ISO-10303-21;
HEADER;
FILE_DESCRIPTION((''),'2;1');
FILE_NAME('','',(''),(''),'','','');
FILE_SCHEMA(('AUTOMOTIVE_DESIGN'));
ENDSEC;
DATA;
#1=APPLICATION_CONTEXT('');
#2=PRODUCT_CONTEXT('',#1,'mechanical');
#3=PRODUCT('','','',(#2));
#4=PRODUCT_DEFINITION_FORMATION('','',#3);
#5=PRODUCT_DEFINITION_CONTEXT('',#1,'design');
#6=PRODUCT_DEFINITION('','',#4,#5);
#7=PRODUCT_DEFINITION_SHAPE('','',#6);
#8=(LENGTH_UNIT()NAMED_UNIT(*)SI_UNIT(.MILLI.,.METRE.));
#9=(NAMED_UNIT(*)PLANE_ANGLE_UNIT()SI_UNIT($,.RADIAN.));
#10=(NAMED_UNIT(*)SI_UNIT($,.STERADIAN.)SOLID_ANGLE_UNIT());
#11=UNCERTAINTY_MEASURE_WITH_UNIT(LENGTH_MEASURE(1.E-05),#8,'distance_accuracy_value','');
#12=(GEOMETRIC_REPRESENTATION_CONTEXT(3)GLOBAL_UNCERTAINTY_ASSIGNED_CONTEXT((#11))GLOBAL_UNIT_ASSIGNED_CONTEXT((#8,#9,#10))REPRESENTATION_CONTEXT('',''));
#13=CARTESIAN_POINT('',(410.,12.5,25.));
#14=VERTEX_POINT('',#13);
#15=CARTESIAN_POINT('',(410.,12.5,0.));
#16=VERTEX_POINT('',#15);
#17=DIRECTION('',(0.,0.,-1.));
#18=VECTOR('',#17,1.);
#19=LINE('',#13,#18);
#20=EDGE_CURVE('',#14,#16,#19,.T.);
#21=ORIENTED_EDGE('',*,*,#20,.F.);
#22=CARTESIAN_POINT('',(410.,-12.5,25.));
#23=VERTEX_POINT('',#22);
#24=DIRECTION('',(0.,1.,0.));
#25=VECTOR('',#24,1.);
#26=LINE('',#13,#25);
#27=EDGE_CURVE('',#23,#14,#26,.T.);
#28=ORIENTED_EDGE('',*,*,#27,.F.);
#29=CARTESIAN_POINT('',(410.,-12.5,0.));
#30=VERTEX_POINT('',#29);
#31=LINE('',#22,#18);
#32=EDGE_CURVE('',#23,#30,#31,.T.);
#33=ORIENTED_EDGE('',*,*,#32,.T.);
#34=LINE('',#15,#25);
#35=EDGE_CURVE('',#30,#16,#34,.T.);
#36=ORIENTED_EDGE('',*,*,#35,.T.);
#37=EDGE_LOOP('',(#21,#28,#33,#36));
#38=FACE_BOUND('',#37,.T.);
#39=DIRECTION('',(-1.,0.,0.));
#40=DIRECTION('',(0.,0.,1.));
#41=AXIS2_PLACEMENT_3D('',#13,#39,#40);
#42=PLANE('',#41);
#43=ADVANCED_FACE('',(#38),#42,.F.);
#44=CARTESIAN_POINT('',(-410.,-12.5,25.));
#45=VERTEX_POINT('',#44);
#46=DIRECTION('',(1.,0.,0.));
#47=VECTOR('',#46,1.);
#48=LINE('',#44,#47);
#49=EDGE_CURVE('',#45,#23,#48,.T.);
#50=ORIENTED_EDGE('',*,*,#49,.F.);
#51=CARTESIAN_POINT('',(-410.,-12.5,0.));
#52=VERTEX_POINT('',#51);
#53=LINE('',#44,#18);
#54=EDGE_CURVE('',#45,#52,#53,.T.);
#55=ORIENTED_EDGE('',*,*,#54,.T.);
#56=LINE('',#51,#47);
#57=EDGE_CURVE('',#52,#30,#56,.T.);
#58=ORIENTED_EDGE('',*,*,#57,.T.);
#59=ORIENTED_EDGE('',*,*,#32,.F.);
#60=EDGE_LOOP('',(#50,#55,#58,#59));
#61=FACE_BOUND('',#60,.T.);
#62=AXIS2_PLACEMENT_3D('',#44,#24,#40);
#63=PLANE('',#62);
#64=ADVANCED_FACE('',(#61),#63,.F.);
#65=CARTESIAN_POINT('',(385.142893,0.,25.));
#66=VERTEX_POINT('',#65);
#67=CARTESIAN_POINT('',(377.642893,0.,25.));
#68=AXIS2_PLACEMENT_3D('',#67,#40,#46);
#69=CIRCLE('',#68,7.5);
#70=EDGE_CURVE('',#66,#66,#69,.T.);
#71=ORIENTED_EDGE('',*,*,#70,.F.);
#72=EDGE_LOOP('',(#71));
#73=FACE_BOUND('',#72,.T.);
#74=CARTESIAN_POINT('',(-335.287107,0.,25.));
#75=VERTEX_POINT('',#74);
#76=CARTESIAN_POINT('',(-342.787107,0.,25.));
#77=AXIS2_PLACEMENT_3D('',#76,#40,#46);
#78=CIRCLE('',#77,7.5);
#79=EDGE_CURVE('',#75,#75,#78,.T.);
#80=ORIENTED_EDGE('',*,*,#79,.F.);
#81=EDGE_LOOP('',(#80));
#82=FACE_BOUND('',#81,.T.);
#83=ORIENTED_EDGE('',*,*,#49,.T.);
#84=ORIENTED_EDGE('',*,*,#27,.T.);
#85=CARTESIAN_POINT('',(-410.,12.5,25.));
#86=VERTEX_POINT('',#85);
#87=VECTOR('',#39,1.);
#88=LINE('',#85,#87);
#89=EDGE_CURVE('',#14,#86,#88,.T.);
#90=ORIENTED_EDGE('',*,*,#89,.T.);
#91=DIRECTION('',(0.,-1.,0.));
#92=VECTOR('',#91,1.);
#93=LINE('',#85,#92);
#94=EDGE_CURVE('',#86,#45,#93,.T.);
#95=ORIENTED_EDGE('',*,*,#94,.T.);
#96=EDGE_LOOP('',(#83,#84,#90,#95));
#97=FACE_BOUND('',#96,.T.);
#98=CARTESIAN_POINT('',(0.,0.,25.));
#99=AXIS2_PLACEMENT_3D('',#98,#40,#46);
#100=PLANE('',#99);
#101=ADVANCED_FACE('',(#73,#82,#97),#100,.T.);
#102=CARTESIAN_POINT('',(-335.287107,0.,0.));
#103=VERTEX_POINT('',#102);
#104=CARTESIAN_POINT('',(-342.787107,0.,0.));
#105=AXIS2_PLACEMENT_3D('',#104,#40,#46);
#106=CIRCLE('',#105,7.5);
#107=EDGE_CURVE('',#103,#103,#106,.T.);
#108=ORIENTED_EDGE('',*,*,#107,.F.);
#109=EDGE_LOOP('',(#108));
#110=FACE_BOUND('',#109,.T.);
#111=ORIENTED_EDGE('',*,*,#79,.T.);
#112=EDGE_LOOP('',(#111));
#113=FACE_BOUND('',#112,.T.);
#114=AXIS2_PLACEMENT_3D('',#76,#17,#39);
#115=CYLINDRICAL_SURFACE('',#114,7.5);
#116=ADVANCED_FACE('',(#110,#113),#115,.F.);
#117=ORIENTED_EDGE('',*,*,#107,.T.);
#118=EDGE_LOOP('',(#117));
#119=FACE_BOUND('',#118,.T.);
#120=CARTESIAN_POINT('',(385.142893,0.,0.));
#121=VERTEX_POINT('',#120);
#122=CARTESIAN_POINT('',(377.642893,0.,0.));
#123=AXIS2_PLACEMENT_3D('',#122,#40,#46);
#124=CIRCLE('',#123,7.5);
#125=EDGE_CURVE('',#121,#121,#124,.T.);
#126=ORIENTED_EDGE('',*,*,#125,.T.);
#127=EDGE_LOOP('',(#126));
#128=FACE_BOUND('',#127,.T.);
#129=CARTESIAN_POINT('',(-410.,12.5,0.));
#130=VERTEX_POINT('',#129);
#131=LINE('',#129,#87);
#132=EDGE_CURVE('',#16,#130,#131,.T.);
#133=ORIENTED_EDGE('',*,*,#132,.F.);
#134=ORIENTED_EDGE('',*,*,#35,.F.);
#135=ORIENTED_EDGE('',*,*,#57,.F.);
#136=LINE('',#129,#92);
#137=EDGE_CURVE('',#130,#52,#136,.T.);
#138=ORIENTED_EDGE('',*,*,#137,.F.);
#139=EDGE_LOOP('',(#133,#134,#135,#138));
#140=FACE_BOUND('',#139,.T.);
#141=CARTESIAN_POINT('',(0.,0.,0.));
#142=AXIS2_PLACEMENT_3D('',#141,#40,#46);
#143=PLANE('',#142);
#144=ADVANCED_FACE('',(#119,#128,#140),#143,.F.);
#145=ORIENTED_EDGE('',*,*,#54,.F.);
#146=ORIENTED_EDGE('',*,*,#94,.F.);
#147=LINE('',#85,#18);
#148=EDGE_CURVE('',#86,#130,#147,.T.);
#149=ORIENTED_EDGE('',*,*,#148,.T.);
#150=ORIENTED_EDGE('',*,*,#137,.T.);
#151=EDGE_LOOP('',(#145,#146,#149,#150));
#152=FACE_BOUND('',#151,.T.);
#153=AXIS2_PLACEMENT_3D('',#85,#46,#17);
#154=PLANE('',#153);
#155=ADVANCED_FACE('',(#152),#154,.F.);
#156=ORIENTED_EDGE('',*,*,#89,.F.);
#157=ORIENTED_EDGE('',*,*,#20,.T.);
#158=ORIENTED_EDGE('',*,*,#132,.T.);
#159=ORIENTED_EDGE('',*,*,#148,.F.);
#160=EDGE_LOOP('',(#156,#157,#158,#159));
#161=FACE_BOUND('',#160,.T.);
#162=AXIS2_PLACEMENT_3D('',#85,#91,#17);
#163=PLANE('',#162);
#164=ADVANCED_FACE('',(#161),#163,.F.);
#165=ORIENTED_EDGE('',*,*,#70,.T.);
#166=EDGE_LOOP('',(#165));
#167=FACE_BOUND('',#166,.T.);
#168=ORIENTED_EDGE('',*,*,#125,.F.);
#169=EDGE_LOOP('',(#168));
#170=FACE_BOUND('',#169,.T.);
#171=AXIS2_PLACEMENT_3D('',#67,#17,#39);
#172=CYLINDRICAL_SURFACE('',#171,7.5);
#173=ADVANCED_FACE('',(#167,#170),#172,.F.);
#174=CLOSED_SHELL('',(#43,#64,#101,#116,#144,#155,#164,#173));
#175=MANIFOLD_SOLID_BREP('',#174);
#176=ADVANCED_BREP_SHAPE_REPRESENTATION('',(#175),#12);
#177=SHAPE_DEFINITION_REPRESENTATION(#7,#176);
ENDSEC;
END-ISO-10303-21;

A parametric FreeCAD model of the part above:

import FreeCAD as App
import Part
import Sketcher

V = App.Vector
Q = App.Units.Quantity

doc = App.newDocument("Part")
body = doc.addObject("PartDesign::Body", "Body")

# Sketch on XY plane
sketch1 = doc.addObject("Sketcher::SketchObject", "Sketch")
body.addObject(sketch1)
sketch1.AttachmentSupport = (doc.XY_Plane, [""])
sketch1.MapMode = "FlatFace"
sketch1.addGeometry(Part.LineSegment(V(-410, 12, 0), V(-410, -12, 0)), False)
sketch1.addGeometry(Part.LineSegment(V(-410, -12, 0), V(410, -12, 0)), False)
sketch1.addGeometry(Part.LineSegment(V(410, -12, 0), V(410, 12, 0)), False)
sketch1.addGeometry(Part.LineSegment(V(410, 12, 0), V(-410, 12, 0)), False)
sketch1.addGeometry(Part.Circle(V(-343, 0, 0), V(0, 0, 1), 8), False)
sketch1.addGeometry(Part.Circle(V(378, 0, 0), V(0, 0, 1), 8), False)
sketch1.addConstraint(Sketcher.Constraint("Coincident", 0, 2, 1, 1))
sketch1.addConstraint(Sketcher.Constraint("Coincident", 1, 2, 2, 1))
sketch1.addConstraint(Sketcher.Constraint("Coincident", 2, 2, 3, 1))
sketch1.addConstraint(Sketcher.Constraint("Coincident", 3, 2, 0, 1))
sketch1.addConstraint(Sketcher.Constraint("Vertical", 0))
sketch1.addConstraint(Sketcher.Constraint("Horizontal", 1))
sketch1.addConstraint(Sketcher.Constraint("Vertical", 2))
sketch1.addConstraint(Sketcher.Constraint("Horizontal", 3))
sketch1.addConstraint(Sketcher.Constraint("Equal", 4, 5))
sketch1.addConstraint(Sketcher.Constraint("Symmetric", 0, 2, 2, 2, -1, 1))
sketch1.addConstraint(Sketcher.Constraint("PointOnObject", 4, 3, -1))
sketch1.addConstraint(Sketcher.Constraint("PointOnObject", 5, 3, -1))
sketch1.addConstraint(Sketcher.Constraint("Diameter", 4, Q("15 mm")))
sketch1.addConstraint(Sketcher.Constraint("DistanceX", 1, 1, 1, 2, Q("820 mm")))
sketch1.addConstraint(Sketcher.Constraint("DistanceY", 0, 2, 0, 1, Q("25 mm")))
sketch1.addConstraint(Sketcher.Constraint("DistanceX", 4, 3, 5, 3, Q("720.43 mm")))
sketch1.addConstraint(Sketcher.Constraint("DistanceX", 4, 3, -1, 1, Q("342.787107 mm")))
pad1 = doc.addObject("PartDesign::Pad", "Pad")
body.addObject(pad1)
pad1.Profile = sketch1
pad1.Length = 25

doc.recompute()
